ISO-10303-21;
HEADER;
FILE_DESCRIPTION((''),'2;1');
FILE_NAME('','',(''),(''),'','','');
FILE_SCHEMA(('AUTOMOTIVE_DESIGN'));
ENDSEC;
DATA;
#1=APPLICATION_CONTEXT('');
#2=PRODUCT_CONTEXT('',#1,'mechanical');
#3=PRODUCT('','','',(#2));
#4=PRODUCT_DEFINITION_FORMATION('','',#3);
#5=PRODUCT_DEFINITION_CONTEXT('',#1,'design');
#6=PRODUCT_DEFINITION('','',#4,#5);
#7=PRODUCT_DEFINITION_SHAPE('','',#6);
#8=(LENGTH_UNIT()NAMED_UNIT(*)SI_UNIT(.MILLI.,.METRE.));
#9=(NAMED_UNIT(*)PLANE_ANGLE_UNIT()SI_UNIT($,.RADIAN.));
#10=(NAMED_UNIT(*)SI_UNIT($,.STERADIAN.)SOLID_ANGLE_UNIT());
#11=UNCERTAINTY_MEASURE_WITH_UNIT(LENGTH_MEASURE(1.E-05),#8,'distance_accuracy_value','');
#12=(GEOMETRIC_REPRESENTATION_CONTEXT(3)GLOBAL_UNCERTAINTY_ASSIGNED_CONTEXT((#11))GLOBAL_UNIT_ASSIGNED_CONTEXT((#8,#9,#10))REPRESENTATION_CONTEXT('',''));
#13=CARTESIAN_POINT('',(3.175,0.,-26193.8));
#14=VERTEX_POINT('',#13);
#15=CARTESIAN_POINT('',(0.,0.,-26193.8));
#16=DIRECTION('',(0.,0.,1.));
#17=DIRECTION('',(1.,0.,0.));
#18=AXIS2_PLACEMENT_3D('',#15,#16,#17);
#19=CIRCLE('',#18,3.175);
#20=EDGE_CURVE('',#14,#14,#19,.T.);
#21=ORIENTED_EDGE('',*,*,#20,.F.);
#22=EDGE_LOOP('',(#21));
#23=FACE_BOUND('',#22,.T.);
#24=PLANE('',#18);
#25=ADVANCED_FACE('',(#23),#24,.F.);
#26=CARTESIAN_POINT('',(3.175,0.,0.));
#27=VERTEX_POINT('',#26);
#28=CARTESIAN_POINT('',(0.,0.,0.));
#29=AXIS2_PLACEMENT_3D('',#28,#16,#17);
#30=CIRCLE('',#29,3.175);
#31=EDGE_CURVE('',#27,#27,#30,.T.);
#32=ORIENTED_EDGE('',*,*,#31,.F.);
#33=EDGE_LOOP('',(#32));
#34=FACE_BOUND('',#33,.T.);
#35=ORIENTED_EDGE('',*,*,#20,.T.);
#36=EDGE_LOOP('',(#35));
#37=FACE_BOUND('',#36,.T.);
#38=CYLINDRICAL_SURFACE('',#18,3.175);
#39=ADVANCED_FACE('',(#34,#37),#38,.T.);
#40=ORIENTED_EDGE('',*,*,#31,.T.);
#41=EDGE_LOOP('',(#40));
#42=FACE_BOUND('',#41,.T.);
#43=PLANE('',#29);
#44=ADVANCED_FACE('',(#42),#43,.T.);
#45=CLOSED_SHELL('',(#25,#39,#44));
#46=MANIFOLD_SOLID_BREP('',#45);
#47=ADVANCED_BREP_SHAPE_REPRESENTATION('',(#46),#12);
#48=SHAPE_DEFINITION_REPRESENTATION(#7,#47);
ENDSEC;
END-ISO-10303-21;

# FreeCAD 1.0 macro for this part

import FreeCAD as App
import Part
import Sketcher
Q = App.Units.Quantity

doc = App.newDocument("Part")
body = doc.addObject("PartDesign::Body", "Body")

sketch1 = body.newObject("Sketcher::SketchObject", "Sketch")
sketch1.AttachmentSupport = (doc.getObject("XY_Plane"), [""])
sketch1.MapMode = "FlatFace"
sketch1.addGeometry(Part.Circle(App.Vector(0, 0, 0), App.Vector(0, 0, 1), 3.175), False)
sketch1.addConstraint([
    Sketcher.Constraint("Coincident", 0, 3, -1, 1),
    Sketcher.Constraint("Diameter", 0, Q("6.35 mm")),
])
pad1 = body.newObject("PartDesign::Pad", "Pad")
pad1.Profile = sketch1
pad1.Length = 26193.8
pad1.Reversed = True

doc.recompute()
